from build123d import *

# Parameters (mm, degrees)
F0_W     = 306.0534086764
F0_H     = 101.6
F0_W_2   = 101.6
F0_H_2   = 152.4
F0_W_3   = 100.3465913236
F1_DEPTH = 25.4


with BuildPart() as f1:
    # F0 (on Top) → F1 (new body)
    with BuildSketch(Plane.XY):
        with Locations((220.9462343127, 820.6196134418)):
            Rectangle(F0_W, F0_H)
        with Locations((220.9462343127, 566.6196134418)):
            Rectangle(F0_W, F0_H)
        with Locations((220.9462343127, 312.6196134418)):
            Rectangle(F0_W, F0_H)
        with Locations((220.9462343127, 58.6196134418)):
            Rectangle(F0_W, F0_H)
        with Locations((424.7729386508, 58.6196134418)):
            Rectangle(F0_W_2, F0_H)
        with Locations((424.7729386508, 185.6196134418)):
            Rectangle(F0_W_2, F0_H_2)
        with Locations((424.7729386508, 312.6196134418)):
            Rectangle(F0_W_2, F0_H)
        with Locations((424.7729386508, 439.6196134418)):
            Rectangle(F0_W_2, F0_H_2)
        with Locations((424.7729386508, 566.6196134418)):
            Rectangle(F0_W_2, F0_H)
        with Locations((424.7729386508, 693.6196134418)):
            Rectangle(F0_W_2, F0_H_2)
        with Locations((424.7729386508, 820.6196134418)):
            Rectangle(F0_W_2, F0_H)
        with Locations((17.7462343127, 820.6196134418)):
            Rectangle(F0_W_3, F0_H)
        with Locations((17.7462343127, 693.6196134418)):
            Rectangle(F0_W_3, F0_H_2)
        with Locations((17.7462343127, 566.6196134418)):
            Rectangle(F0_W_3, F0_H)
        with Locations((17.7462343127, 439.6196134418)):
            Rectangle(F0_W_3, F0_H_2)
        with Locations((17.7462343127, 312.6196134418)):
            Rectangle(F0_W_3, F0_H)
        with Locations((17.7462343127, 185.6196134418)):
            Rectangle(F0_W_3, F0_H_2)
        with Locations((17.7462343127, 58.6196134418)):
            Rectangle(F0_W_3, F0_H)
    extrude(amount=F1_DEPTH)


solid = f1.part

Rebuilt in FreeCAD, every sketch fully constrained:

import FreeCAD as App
import Part
import Sketcher

V = App.Vector
Q = App.Units.Quantity


def add_polygon(sketch, points):
    """Adds a closed chain of lines whose ends are joined by coincident constraints."""
    first, n = sketch.GeometryCount, len(points)
    for a, b in zip(points, points[1:] + points[:1]):
        sketch.addGeometry(Part.LineSegment(App.Vector(*a, 0), App.Vector(*b, 0)), False)
    for i in range(n):
        sketch.addConstraint(Sketcher.Constraint("Coincident", first + i, 2, first + (i + 1) % n, 1))

doc = App.newDocument("Part")
params = doc.addObject("Spreadsheet::Sheet", "Params")
for row, (alias, value) in enumerate([
    ("sketch1_width", "20 in"),
    ("sketch1_height", "34 in"),
    ("sketch1_height2", "6 in"),
    ("pad1_length", "1 in"),
], start=1):
    params.set(f"A{row}", alias)
    params.set(f"B{row}", "=" + value)
    params.setAlias(f"B{row}", alias)

body = doc.addObject("PartDesign::Body", "Body")

# Sketch on XY plane
sketch1 = body.newObject("Sketcher::SketchObject", "Sketch")
sketch1.AttachmentSupport = (doc.getObject("XY_Plane"), [""])
sketch1.MapMode = "FlatFace"
add_polygon(sketch1, [(-32, 871), (-32, 8), (476, 8), (476, 871)])  # lines 0-3
add_polygon(sketch1, [(374, 109), (68, 109), (68, 262), (374, 262)])  # lines 4-7
add_polygon(sketch1, [(374, 363), (68, 363), (68, 516), (374, 516)])  # lines 8-11
add_polygon(sketch1, [(374, 617), (68, 617), (68, 770), (374, 770)])  # lines 12-15
sketch1.addConstraint(Sketcher.Constraint("Vertical", 0))
sketch1.addConstraint(Sketcher.Constraint("Horizontal", 1))
sketch1.addConstraint(Sketcher.Constraint("Vertical", 2))
sketch1.addConstraint(Sketcher.Constraint("Horizontal", 3))
sketch1.addConstraint(Sketcher.Constraint("Horizontal", 4))
sketch1.addConstraint(Sketcher.Constraint("Vertical", 5))
sketch1.addConstraint(Sketcher.Constraint("Horizontal", 6))
sketch1.addConstraint(Sketcher.Constraint("Vertical", 7))
sketch1.addConstraint(Sketcher.Constraint("Horizontal", 8))
sketch1.addConstraint(Sketcher.Constraint("Vertical", 9))
sketch1.addConstraint(Sketcher.Constraint("Horizontal", 10))
sketch1.addConstraint(Sketcher.Constraint("Vertical", 11))
sketch1.addConstraint(Sketcher.Constraint("Horizontal", 12))
sketch1.addConstraint(Sketcher.Constraint("Vertical", 13))
sketch1.addConstraint(Sketcher.Constraint("Horizontal", 14))
sketch1.addConstraint(Sketcher.Constraint("Vertical", 15))
sketch1.addConstraint(Sketcher.Constraint("Vertical", 5, 2, 8, 2))
sketch1.addConstraint(Sketcher.Constraint("Vertical", 7, 2, 10, 2))
sketch1.addConstraint(Sketcher.Constraint("Vertical", 9, 2, 12, 2))
sketch1.addConstraint(Sketcher.Constraint("Vertical", 11, 2, 14, 2))
sketch1.addConstraint(Sketcher.Constraint("Equal", 7, 9))
sketch1.addConstraint(Sketcher.Constraint("Equal", 11, 13))
sketch1.addConstraint(Sketcher.Constraint("DistanceX", 1, 1, 1, 2, Q("20 in")))
sketch1.addConstraint(Sketcher.Constraint("DistanceY", 0, 2, 0, 1, Q("34 in")))
sketch1.addConstraint(Sketcher.Constraint("DistanceY", 5, 1, 5, 2, Q("6 in")))
sketch1.addConstraint(Sketcher.Constraint("DistanceY", 0, 2, 4, 2, Q("4 in")))
sketch1.addConstraint(Sketcher.Constraint("DistanceX", 6, 2, 1, 2, Q("4 in")))
sketch1.addConstraint(Sketcher.Constraint("DistanceY", 5, 2, 8, 2, Q("4 in")))
sketch1.addConstraint(Sketcher.Constraint("DistanceY", 9, 2, 12, 2, Q("4 in")))
sketch1.addConstraint(Sketcher.Constraint("DistanceX", 4, 2, 4, 1, 306.053409))
sketch1.addConstraint(Sketcher.Constraint("DistanceX", 0, 2, -1, 1, 32.427061))
sketch1.addConstraint(Sketcher.Constraint("DistanceY", -1, 1, 0, 2, 7.819613))
sketch1.setExpression("Constraints[38]", "Params.sketch1_width")
sketch1.setExpression("Constraints[39]", "Params.sketch1_height")
sketch1.setExpression("Constraints[40]", "Params.sketch1_height2")
pad1 = body.newObject("PartDesign::Pad", "Pad")
pad1.Profile = sketch1
pad1.setExpression("Length", "Params.pad1_length")

doc.recompute()
